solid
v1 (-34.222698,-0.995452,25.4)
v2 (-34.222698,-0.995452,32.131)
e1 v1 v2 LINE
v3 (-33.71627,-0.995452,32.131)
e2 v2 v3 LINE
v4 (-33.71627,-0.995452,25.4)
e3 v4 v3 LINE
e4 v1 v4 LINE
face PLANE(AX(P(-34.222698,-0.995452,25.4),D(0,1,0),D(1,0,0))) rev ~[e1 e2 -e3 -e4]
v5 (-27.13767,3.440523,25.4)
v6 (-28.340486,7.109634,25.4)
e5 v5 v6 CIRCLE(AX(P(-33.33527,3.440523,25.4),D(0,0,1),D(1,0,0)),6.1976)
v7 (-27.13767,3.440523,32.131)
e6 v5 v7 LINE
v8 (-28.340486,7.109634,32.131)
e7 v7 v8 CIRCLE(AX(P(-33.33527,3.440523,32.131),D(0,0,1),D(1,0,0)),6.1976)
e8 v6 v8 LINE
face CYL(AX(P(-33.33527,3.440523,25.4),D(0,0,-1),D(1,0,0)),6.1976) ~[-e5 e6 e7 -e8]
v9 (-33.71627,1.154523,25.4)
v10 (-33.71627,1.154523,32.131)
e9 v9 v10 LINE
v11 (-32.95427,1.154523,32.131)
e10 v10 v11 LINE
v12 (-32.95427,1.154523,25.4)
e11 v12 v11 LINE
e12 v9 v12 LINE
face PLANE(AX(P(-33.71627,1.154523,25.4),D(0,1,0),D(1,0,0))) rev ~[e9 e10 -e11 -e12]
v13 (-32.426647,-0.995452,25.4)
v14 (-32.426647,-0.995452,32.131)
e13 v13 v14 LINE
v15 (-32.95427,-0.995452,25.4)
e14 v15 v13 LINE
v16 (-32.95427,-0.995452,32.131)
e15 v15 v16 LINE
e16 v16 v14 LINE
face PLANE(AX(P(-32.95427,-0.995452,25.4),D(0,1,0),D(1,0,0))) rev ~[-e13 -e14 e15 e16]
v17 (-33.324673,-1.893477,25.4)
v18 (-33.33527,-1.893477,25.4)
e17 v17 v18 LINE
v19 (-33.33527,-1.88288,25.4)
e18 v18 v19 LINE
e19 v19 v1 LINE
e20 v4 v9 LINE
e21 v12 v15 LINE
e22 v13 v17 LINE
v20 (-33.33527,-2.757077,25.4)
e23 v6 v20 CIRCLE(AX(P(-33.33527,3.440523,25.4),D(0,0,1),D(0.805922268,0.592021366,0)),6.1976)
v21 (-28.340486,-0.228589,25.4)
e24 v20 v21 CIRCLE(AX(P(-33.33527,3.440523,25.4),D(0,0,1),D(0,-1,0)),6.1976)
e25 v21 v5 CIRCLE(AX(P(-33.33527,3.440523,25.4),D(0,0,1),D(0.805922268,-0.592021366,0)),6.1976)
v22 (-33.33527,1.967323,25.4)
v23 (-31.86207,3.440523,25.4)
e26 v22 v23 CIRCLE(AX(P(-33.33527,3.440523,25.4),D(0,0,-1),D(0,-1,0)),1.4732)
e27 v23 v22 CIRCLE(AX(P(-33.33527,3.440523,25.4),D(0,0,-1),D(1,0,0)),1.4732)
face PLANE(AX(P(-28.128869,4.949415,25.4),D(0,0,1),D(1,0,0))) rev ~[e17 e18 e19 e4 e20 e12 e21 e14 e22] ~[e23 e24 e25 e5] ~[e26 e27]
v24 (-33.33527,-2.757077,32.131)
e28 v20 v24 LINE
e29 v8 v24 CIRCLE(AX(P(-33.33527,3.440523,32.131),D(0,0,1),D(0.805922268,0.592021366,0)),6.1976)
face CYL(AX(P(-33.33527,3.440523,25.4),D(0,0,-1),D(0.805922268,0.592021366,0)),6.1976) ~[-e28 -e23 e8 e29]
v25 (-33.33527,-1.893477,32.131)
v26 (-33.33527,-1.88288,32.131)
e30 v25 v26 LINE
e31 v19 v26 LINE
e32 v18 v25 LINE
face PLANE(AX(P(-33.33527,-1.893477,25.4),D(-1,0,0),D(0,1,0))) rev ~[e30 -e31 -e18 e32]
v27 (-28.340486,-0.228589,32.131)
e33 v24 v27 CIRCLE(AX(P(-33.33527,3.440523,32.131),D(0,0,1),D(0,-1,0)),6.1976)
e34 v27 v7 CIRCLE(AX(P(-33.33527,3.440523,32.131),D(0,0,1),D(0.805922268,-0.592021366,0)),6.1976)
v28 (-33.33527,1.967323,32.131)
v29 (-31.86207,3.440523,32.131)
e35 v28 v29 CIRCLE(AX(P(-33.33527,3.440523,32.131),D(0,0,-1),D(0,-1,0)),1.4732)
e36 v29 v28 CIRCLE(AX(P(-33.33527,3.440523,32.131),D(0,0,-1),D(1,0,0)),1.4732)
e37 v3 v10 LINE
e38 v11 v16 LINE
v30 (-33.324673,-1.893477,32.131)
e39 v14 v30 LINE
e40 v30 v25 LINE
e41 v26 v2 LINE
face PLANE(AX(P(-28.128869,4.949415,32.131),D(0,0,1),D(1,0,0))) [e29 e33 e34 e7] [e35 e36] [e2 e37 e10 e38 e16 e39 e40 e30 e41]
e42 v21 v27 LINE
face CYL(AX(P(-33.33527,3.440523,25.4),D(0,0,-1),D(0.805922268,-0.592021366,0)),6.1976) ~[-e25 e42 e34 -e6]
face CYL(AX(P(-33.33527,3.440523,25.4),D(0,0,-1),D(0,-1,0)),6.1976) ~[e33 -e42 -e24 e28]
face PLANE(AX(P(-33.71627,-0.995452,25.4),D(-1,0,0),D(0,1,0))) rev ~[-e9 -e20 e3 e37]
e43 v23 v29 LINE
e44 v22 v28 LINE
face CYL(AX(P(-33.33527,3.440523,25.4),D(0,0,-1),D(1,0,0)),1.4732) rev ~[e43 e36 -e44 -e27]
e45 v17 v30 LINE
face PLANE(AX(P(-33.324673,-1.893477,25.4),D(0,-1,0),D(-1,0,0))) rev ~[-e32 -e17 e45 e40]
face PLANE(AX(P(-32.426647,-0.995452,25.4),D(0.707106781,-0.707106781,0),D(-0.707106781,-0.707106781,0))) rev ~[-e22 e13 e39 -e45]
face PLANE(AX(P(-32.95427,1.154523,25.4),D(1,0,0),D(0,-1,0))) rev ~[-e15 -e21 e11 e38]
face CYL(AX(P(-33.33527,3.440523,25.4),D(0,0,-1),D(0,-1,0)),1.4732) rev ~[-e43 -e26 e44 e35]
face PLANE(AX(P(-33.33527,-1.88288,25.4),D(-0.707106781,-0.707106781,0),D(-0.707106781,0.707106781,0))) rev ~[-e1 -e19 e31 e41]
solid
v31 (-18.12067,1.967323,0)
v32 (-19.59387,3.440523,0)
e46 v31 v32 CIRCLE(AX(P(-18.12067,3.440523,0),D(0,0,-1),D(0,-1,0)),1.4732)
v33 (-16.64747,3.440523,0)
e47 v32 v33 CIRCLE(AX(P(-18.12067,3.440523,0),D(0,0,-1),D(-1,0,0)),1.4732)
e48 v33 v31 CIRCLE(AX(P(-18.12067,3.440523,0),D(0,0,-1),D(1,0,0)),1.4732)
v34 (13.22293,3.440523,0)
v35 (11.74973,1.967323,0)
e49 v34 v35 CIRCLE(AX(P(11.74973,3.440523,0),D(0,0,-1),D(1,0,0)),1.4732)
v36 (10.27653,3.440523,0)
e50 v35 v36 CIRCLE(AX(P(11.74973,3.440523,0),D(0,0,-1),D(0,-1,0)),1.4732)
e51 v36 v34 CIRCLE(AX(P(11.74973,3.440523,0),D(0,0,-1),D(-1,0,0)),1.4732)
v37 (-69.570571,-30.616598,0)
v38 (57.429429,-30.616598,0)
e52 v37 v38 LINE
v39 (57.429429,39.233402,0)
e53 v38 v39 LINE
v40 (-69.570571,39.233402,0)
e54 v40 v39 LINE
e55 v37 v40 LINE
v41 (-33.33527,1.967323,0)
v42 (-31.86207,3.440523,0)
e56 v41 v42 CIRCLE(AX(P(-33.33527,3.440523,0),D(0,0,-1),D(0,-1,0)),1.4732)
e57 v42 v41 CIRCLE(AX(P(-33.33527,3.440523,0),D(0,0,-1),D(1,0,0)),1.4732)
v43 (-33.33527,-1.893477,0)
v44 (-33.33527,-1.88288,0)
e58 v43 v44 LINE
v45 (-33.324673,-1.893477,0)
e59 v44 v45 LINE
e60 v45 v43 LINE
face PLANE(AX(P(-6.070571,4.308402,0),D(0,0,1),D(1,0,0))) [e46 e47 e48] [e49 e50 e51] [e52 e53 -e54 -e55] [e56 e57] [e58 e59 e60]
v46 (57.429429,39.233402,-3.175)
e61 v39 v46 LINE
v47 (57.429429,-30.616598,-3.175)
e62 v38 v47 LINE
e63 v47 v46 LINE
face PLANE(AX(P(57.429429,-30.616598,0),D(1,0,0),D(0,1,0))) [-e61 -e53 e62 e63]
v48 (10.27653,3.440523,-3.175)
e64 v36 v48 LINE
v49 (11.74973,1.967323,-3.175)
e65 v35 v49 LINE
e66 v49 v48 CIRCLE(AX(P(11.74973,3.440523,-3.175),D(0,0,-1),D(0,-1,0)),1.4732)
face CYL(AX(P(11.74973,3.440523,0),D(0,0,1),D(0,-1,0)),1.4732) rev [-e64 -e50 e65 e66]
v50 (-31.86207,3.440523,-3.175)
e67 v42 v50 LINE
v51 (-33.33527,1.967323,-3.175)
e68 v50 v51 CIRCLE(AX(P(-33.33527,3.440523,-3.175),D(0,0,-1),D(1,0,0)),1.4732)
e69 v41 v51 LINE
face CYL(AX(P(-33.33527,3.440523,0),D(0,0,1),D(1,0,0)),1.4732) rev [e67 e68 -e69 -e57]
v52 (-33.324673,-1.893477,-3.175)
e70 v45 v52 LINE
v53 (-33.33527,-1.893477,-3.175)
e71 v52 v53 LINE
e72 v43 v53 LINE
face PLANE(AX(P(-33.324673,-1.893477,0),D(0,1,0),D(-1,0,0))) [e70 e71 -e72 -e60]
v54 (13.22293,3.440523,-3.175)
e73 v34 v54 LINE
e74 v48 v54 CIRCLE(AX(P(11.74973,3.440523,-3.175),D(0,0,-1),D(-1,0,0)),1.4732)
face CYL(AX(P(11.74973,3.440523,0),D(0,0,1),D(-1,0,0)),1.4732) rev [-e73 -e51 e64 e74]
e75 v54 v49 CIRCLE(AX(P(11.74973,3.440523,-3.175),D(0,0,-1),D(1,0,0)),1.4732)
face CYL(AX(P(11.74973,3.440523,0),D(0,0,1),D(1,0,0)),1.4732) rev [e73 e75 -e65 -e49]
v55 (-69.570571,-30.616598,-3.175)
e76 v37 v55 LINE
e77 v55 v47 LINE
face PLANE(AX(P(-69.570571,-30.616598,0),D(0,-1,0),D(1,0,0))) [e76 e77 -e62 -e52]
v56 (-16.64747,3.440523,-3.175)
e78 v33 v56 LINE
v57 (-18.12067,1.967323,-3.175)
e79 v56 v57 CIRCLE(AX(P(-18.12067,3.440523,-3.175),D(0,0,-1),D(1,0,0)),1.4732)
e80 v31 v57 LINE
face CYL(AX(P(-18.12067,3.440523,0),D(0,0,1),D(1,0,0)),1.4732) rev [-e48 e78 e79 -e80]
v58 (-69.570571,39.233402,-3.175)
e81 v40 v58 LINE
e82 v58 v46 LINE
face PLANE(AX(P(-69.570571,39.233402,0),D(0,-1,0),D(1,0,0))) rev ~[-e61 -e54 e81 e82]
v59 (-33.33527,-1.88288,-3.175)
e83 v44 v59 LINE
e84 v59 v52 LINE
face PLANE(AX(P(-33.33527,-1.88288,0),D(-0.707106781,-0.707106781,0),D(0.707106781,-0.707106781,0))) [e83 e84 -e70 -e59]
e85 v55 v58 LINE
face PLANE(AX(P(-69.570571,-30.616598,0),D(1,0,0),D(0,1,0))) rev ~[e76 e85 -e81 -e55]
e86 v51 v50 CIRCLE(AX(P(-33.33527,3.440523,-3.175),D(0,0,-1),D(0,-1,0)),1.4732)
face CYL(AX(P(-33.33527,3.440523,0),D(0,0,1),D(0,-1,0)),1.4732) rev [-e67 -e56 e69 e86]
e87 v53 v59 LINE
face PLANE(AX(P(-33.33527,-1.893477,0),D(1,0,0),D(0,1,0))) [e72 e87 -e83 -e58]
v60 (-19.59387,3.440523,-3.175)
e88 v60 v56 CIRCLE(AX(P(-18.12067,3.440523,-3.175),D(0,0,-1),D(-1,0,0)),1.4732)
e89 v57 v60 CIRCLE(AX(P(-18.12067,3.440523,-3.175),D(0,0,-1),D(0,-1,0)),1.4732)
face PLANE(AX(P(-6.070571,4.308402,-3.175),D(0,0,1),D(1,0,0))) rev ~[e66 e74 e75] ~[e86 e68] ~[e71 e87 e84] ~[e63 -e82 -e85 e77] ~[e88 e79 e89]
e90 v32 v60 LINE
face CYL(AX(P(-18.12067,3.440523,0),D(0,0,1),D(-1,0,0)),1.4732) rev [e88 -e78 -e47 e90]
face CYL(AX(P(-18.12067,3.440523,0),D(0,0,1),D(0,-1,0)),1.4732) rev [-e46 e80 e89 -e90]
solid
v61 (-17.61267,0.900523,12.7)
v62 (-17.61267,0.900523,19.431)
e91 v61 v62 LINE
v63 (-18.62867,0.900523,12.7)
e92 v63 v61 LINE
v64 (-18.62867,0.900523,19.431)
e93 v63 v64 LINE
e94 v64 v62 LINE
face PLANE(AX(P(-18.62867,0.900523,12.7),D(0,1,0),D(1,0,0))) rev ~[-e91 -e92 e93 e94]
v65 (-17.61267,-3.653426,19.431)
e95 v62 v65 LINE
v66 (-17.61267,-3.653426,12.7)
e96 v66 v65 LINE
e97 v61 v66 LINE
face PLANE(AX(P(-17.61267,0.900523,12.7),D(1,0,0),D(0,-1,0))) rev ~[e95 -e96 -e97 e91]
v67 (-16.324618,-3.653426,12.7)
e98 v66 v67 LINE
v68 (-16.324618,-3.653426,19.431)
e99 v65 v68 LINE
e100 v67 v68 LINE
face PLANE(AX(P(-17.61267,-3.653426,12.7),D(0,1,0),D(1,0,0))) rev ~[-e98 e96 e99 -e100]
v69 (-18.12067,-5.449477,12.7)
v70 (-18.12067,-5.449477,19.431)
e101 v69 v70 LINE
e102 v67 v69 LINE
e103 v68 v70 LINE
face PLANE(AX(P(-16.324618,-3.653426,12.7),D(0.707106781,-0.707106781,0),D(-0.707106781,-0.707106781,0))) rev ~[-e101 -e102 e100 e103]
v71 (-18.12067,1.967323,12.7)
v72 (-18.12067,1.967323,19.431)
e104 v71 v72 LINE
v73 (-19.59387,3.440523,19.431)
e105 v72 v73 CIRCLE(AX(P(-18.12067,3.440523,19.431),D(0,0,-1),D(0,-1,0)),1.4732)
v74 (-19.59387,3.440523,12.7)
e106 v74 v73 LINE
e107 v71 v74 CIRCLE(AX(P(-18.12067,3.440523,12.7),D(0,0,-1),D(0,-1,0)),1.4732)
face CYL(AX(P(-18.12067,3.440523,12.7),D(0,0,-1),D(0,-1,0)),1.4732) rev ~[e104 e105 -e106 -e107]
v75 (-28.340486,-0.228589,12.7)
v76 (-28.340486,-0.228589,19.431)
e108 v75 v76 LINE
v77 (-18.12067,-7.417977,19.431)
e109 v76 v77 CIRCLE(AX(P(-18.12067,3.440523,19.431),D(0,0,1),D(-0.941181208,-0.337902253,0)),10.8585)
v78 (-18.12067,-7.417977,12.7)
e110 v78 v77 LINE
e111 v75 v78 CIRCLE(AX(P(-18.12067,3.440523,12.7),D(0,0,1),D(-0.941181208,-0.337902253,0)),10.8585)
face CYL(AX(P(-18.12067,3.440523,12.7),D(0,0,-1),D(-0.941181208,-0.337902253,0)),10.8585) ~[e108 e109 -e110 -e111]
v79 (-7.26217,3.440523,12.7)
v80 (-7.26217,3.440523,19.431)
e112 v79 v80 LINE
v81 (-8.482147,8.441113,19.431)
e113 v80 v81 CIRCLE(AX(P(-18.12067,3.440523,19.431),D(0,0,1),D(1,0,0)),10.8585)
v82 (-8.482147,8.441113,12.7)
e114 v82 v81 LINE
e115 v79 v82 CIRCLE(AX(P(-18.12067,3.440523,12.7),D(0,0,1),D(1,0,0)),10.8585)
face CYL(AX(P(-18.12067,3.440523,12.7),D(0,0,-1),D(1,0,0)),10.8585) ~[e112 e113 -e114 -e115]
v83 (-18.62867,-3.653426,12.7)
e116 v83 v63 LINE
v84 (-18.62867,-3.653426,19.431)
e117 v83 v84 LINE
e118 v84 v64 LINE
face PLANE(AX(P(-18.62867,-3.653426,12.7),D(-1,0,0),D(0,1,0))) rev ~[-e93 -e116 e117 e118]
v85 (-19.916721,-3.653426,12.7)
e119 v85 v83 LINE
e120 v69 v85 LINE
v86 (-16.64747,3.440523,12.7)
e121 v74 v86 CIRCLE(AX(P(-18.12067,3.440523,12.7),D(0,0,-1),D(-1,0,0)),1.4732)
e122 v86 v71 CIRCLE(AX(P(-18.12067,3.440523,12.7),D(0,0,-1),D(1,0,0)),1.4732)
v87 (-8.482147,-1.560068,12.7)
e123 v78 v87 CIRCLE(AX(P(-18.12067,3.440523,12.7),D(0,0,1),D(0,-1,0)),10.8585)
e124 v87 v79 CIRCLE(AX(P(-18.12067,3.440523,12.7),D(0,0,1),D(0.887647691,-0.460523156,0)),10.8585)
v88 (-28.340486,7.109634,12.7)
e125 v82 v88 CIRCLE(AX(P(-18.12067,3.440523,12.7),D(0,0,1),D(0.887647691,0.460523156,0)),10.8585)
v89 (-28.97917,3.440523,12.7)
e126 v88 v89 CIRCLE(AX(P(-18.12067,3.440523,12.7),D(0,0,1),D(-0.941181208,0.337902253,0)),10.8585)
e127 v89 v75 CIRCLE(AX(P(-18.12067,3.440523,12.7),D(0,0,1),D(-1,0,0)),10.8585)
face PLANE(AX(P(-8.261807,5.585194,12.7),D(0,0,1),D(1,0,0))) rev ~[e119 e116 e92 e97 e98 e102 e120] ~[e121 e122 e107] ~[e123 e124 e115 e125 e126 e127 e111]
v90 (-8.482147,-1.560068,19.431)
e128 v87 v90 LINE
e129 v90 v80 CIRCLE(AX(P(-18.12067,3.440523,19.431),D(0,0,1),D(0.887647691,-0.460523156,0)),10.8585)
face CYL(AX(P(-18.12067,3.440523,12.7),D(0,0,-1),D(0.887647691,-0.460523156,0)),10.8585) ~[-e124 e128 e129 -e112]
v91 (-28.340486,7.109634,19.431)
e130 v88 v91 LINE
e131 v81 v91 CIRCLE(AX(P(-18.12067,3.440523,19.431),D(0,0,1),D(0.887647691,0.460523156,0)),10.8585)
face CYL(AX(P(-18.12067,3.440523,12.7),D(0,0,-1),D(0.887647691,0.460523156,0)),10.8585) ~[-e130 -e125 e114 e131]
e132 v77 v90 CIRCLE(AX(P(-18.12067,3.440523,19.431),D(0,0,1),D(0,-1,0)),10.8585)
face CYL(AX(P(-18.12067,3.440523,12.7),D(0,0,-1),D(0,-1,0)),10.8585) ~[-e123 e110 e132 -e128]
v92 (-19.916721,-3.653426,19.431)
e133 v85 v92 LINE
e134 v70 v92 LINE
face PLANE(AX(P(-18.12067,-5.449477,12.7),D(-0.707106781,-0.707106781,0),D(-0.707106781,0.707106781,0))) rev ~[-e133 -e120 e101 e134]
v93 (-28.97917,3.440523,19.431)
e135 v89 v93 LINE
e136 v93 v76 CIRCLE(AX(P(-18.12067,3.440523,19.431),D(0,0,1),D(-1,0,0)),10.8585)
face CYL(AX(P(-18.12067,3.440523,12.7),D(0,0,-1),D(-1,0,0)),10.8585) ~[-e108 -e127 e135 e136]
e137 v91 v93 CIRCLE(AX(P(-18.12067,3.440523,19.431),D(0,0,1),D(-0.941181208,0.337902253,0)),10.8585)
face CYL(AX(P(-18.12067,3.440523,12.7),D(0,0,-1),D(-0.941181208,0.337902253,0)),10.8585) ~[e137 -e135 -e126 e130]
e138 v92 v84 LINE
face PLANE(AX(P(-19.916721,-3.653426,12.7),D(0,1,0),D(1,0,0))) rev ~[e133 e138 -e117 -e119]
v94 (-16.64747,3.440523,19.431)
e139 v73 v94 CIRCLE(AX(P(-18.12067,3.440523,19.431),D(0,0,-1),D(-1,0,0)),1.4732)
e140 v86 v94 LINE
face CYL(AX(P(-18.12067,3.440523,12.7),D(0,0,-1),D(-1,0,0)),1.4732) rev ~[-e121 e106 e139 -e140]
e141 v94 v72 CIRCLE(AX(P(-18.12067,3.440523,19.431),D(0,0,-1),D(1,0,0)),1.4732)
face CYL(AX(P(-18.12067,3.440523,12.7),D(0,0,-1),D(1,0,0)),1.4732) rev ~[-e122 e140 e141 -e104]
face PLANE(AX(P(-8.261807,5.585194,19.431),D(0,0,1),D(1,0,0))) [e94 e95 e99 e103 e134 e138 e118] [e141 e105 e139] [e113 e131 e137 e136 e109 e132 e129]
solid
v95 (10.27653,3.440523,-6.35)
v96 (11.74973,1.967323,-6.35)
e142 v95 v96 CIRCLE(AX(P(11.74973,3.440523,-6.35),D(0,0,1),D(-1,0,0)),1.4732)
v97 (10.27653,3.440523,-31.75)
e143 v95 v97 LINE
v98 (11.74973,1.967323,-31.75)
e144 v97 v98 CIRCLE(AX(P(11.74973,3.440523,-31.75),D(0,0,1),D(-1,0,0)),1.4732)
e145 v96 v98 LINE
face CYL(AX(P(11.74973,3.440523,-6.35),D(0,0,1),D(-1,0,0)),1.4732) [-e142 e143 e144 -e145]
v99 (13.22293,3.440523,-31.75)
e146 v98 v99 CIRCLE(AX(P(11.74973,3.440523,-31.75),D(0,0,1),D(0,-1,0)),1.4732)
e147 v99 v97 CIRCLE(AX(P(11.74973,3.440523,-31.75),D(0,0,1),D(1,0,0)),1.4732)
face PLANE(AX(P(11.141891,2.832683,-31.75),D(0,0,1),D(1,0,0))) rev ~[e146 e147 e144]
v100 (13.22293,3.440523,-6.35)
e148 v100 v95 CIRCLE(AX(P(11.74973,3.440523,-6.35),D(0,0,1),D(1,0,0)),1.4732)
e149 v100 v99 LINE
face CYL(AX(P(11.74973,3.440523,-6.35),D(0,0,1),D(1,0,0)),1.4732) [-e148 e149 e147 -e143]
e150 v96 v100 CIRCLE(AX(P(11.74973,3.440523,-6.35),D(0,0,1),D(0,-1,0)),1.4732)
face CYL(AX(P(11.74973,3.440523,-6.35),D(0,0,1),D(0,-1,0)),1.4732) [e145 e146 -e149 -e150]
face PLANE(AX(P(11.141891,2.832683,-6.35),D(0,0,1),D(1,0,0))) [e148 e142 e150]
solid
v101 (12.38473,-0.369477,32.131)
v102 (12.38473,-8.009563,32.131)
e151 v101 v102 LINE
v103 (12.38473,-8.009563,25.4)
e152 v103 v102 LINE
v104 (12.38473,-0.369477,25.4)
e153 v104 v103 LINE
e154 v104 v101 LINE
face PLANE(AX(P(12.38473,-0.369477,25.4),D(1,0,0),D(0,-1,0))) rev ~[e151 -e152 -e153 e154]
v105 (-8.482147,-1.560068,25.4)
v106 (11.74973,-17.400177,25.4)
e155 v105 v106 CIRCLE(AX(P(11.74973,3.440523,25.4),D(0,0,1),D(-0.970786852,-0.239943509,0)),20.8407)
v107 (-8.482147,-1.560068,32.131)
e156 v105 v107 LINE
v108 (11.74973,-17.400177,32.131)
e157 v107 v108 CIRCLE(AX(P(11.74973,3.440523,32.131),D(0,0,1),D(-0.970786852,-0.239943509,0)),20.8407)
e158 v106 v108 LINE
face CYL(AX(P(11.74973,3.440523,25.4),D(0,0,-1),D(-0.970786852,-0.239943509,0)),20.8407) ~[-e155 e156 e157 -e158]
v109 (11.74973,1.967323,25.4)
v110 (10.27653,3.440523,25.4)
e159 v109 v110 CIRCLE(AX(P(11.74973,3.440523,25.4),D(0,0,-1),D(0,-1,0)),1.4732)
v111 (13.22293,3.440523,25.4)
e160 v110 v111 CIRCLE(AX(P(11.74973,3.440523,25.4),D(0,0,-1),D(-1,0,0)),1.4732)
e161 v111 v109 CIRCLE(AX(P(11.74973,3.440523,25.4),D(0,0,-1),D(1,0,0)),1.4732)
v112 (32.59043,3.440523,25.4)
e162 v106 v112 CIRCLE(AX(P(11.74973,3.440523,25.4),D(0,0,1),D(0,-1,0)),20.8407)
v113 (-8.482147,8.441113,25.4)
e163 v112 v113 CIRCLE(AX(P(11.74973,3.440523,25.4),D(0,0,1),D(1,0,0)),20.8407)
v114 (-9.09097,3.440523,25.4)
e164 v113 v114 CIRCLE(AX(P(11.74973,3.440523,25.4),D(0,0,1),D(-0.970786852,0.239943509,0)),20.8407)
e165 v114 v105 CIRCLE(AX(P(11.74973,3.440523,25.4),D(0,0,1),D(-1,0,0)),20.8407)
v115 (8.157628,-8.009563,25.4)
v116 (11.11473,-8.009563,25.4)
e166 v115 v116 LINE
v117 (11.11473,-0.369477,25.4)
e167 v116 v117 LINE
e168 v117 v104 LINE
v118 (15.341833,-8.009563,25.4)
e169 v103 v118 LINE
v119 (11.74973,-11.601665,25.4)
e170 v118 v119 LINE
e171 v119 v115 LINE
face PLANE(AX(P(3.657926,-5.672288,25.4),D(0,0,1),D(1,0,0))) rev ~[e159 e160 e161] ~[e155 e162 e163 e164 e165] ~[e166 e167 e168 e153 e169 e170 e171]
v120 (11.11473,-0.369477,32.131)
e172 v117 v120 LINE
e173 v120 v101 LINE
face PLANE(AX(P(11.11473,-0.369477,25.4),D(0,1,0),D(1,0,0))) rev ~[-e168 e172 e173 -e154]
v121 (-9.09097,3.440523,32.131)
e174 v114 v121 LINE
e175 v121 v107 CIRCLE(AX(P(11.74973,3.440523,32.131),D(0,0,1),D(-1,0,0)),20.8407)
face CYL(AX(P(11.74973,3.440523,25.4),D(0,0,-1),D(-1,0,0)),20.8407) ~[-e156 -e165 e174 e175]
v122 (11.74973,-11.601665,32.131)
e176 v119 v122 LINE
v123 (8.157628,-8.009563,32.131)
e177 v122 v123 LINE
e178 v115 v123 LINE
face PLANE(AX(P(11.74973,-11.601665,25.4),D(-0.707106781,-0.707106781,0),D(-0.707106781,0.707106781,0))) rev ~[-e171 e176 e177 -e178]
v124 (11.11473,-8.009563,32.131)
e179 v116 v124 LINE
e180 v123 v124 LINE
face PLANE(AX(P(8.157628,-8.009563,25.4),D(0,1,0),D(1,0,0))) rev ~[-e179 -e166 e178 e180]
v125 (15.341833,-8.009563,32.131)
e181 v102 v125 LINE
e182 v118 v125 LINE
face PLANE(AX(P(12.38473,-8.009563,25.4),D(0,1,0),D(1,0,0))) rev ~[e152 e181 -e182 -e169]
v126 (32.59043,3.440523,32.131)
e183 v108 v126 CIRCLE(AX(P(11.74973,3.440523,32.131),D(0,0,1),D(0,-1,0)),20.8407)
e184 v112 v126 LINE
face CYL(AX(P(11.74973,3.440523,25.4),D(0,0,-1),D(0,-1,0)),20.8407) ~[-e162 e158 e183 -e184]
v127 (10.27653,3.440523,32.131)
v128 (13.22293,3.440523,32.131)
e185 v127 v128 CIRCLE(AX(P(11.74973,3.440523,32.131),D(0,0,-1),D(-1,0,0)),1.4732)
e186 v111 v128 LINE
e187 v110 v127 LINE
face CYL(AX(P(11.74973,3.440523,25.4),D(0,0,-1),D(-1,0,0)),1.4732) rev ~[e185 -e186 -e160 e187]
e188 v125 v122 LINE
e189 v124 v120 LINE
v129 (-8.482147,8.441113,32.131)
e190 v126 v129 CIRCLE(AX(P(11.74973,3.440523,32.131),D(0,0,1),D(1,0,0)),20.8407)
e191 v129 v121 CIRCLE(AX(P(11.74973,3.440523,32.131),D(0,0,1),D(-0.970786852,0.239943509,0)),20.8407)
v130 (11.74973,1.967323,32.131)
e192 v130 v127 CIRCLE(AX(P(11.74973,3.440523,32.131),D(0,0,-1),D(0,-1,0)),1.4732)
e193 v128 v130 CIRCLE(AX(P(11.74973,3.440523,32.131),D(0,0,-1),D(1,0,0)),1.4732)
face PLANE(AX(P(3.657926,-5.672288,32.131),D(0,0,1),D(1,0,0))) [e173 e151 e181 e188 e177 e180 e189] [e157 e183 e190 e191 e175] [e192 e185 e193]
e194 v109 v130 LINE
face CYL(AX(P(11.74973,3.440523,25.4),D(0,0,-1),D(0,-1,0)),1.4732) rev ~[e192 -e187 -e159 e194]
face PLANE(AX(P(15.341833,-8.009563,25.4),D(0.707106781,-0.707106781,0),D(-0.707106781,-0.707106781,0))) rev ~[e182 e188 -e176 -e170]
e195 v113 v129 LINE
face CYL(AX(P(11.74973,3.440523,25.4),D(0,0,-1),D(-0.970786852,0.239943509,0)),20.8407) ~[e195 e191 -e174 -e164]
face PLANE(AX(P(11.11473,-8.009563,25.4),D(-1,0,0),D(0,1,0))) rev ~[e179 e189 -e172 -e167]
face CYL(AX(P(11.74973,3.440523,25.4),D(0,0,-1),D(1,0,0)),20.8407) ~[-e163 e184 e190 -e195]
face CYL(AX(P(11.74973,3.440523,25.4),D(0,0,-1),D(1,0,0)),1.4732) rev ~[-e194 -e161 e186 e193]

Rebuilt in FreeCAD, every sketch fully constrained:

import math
import FreeCAD as App
import Part
import Sketcher
Q = App.Units.Quantity


def add_polygon(sketch, points):
    """Adds a closed chain of lines whose ends are joined by coincident constraints."""
    first, n = sketch.GeometryCount, len(points)
    for a, b in zip(points, points[1:] + points[:1]):
        sketch.addGeometry(Part.LineSegment(App.Vector(*a, 0), App.Vector(*b, 0)), False)
    for i in range(n):
        sketch.addConstraint(Sketcher.Constraint("Coincident", first + i, 2, first + (i + 1) % n, 1))

doc = App.newDocument("Part")
body = doc.addObject("PartDesign::Body", "Body")

# Sketch on XY plane
sketch1 = body.newObject("Sketcher::SketchObject", "Sketch")
sketch1.AttachmentSupport = (doc.getObject("XY_Plane"), [""])
sketch1.MapMode = "FlatFace"
add_polygon(sketch1, [(-69.571, 39.233), (-69.571, -30.617), (57.429, -30.617), (57.429, 39.233)])  # lines 0-3
add_polygon(sketch1, [(-33.335, -1.893), (-33.335, -1.883), (-33.325, -1.893)])  # lines 4-6
sketch1.addGeometry(Part.ArcOfCircle(Part.Circle(App.Vector(-33.335, 3.441, 0), App.Vector(0, 0, 1), 1.473), math.radians(0), math.radians(270)), False)  # 7
sketch1.addGeometry(Part.ArcOfCircle(Part.Circle(App.Vector(-33.335, 3.441, 0), App.Vector(0, 0, 1), 1.473), math.radians(-90), math.radians(0)), False)  # 8
sketch1.addGeometry(Part.ArcOfCircle(Part.Circle(App.Vector(-18.121, 3.441, 0), App.Vector(0, 0, 1), 1.473), math.radians(0), math.radians(180)), False)  # 9
sketch1.addGeometry(Part.ArcOfCircle(Part.Circle(App.Vector(-18.121, 3.441, 0), App.Vector(0, 0, 1), 1.473), math.radians(-90), math.radians(0)), False)  # 10
sketch1.addGeometry(Part.ArcOfCircle(Part.Circle(App.Vector(-18.121, 3.441, 0), App.Vector(0, 0, 1), 1.473), math.radians(180), math.radians(270)), False)  # 11
sketch1.addGeometry(Part.ArcOfCircle(Part.Circle(App.Vector(11.75, 3.441, 0), App.Vector(0, 0, 1), 1.473), math.radians(180), math.radians(270)), False)  # 12
sketch1.addGeometry(Part.ArcOfCircle(Part.Circle(App.Vector(11.75, 3.441, 0), App.Vector(0, 0, 1), 1.473), math.radians(0), math.radians(180)), False)  # 13
sketch1.addGeometry(Part.ArcOfCircle(Part.Circle(App.Vector(11.75, 3.441, 0), App.Vector(0, 0, 1), 1.473), math.radians(-90), math.radians(0)), False)  # 14
sketch1.addConstraint([
    Sketcher.Constraint("Tangent", 7, 1, 8, 2),
    Sketcher.Constraint("Coincident", 8, 1, 7, 2),
    Sketcher.Constraint("Tangent", 9, 1, 10, 2),
    Sketcher.Constraint("Tangent", 10, 1, 11, 2),
    Sketcher.Constraint("Tangent", 11, 1, 9, 2),
    Sketcher.Constraint("Tangent", 12, 1, 13, 2),
    Sketcher.Constraint("Tangent", 13, 1, 14, 2),
    Sketcher.Constraint("Tangent", 14, 1, 12, 2),
    Sketcher.Constraint("Vertical", 0),
    Sketcher.Constraint("Horizontal", 1),
    Sketcher.Constraint("Vertical", 2),
    Sketcher.Constraint("Horizontal", 3),
    Sketcher.Constraint("Vertical", 4),
    Sketcher.Constraint("Horizontal", 6),
    Sketcher.Constraint("Equal", 8, 9),
    Sketcher.Constraint("Equal", 11, 12),
    Sketcher.Constraint("Horizontal", 8, 3, 9, 3),
    Sketcher.Constraint("Horizontal", 11, 3, 12, 3),
    Sketcher.Constraint("Horizontal", 14, 3, 7, 1),
    Sketcher.Constraint("Horizontal", 7, 1, 9, 1),
    Sketcher.Constraint("Horizontal", 9, 1, 11, 1),
    Sketcher.Constraint("Horizontal", 11, 1, 12, 1),
    Sketcher.Constraint("Horizontal", 12, 1, 13, 1),
    Sketcher.Constraint("Vertical", 8, 3, 4, 2),
    Sketcher.Constraint("Vertical", 6, 2, 8, 1),
    Sketcher.Constraint("Vertical", 11, 3, 10, 1),
    Sketcher.Constraint("Vertical", 13, 3, 14, 1),
    Sketcher.Constraint("Equal", 6, 4),
    Sketcher.Constraint("DistanceX", 1, 1, 1, 2, Q("5 in")),
    Sketcher.Constraint("Radius", 7, Q("0.058 in")),
    Sketcher.Constraint("DistanceY", 0, 2, 0, 1, Q("2.75 in")),
    Sketcher.Constraint("DistanceY", 5, 2, 7, 3, Q("0.21 in")),
    Sketcher.Constraint("DistanceX", 9, 1, 12, 1, Q("1.06 in")),
    Sketcher.Constraint("DistanceX", 7, 3, 9, 3, Q("0.599 in")),
    Sketcher.Constraint("DistanceX", 0, 2, 7, 3, 36.235302),
    Sketcher.Constraint("DistanceX", 6, 2, 6, 1, 0.010597),
    Sketcher.Constraint("DistanceX", 7, 3, -1, 1, 33.33527),
    Sketcher.Constraint("DistanceY", 4, 2, -1, 1, 1.88288),
    Sketcher.Constraint("DistanceY", 0, 2, 7, 3, 34.05712),
])
pad1 = body.newObject("PartDesign::Pad", "Pad")
pad1.Profile = sketch1
pad1.Length = Q("0.125 in")
pad1.Reversed = True
body2 = doc.addObject("PartDesign::Body", "Body001")

# Sketch on XY plane
sketch2 = body2.newObject("Sketcher::SketchObject", "Sketch001")
sketch2.AttachmentSupport = (doc.getObject("XY_Plane001"), [""])
sketch2.MapMode = "FlatFace"
sketch2.AttachmentOffset = App.Placement(App.Vector(0, 0, 1 * 25.4), App.Rotation())
sketch2.addGeometry(Part.ArcOfCircle(Part.Circle(App.Vector(11.7, 3.4, 0), App.Vector(0, 0, 1), 20.8), math.radians(166.12), math.radians(180)), False)  # 0
sketch2.addGeometry(Part.ArcOfCircle(Part.Circle(App.Vector(11.7, 3.4, 0), App.Vector(0, 0, 1), 20.8), math.radians(-180), math.radians(-166.12)), False)  # 1
sketch2.addGeometry(Part.ArcOfCircle(Part.Circle(App.Vector(11.7, 3.4, 0), App.Vector(0, 0, 1), 20.8), math.radians(-166), math.radians(-90)), False)  # 2
sketch2.addGeometry(Part.ArcOfCircle(Part.Circle(App.Vector(11.7, 3.4, 0), App.Vector(0, 0, 1), 20.8), math.radians(-90), math.radians(0)), False)  # 3
sketch2.addGeometry(Part.ArcOfCircle(Part.Circle(App.Vector(11.7, 3.4, 0), App.Vector(0, 0, 1), 20.8), math.radians(0), math.radians(166)), False)  # 4
add_polygon(sketch2, [(11.7, -11.6), (8.2, -8), (11.1, -8), (11.1, -0.4), (12.4, -0.4), (12.4, -8), (15.3, -8)])  # lines 5-11
sketch2.addGeometry(Part.ArcOfCircle(Part.Circle(App.Vector(11.7, 3.4, 0), App.Vector(0, 0, 1), 1.5), math.radians(180), math.radians(270)), False)  # 12
sketch2.addGeometry(Part.ArcOfCircle(Part.Circle(App.Vector(11.7, 3.4, 0), App.Vector(0, 0, 1), 1.5), math.radians(0), math.radians(180)), False)  # 13
sketch2.addGeometry(Part.ArcOfCircle(Part.Circle(App.Vector(11.7, 3.4, 0), App.Vector(0, 0, 1), 1.5), math.radians(-90), math.radians(0)), False)  # 14
sketch2.addConstraint([
    Sketcher.Constraint("Tangent", 0, 2, 1, 1),
    Sketcher.Constraint("Tangent", 1, 2, 2, 1),
    Sketcher.Constraint("Tangent", 2, 2, 3, 1),
    Sketcher.Constraint("Tangent", 3, 2, 4, 1),
    Sketcher.Constraint("Tangent", 4, 2, 0, 1),
    Sketcher.Constraint("Tangent", 12, 1, 13, 2),
    Sketcher.Constraint("Tangent", 13, 1, 14, 2),
    Sketcher.Constraint("Tangent", 14, 1, 12, 2),
    Sketcher.Constraint("Horizontal", 6),
    Sketcher.Constraint("Vertical", 7),
    Sketcher.Constraint("Horizontal", 8),
    Sketcher.Constraint("Vertical", 9),
    Sketcher.Constraint("Horizontal", 10),
    Sketcher.Constraint("Coincident", 2, 3, 0, 3),
    Sketcher.Constraint("Coincident", 12, 3, 0, 3),
    Sketcher.Constraint("Perpendicular", 5, 11),
    Sketcher.Constraint("Horizontal", 14, 3, 0, 2),
    Sketcher.Constraint("Horizontal", 0, 2, 3, 2),
    Sketcher.Constraint("Horizontal", 6, 2, 9, 2),
    Sketcher.Constraint("Horizontal", 3, 2, 12, 1),
    Sketcher.Constraint("Horizontal", 12, 1, 13, 1),
    Sketcher.Constraint("Vertical", 14, 3, 2, 2),
    Sketcher.Constraint("Vertical", 1, 2, 4, 2),
    Sketcher.Constraint("Vertical", 2, 2, 11, 2),
    Sketcher.Constraint("Vertical", 11, 2, 14, 1),
    Sketcher.Constraint("Equal", 6, 10),
    Sketcher.Constraint("Equal", 5, 11),
    Sketcher.Constraint("Radius", 12, Q("0.058 in")),
    Sketcher.Constraint("Distance", 5, Q("0.2 in")),
    Sketcher.Constraint("DistanceX", 8, 1, 8, 2, Q("0.05 in")),
    Sketcher.Constraint("Radius", 0, Q("0.8205 in")),
    Sketcher.Constraint("DistanceY", 7, 2, 2, 3, Q("0.15 in")),
    Sketcher.Constraint("DistanceY", 7, 1, 7, 2, 7.640085),
    Sketcher.Constraint("DistanceX", -1, 1, 0, 3, 11.74973),
    Sketcher.Constraint("DistanceY", 1, 2, -1, 1, 1.560068),
    Sketcher.Constraint("DistanceY", 1, 2, 0, 2, 5.000591),
])
pad2 = body2.newObject("PartDesign::Pad", "Pad001")
pad2.Profile = sketch2
pad2.Length = Q("0.265 in")
body3 = doc.addObject("PartDesign::Body", "Body002")

# Sketch on XY plane
sketch3 = body3.newObject("Sketcher::SketchObject", "Sketch002")
sketch3.AttachmentSupport = (doc.getObject("XY_Plane002"), [""])
sketch3.MapMode = "FlatFace"
sketch3.AttachmentOffset = App.Placement(App.Vector(0, 0, 1 * 25.4), App.Rotation())
sketch3.addGeometry(Part.ArcOfCircle(Part.Circle(App.Vector(-33.335, 3.441, 0), App.Vector(0, 0, 1), 6.198), math.radians(-36), math.radians(0)), False)  # 0
sketch3.addGeometry(Part.ArcOfCircle(Part.Circle(App.Vector(-33.335, 3.441, 0), App.Vector(0, 0, 1), 6.198), math.radians(0), math.radians(36)), False)  # 1
sketch3.addGeometry(Part.ArcOfCircle(Part.Circle(App.Vector(-33.335, 3.441, 0), App.Vector(0, 0, 1), 6.198), math.radians(36), math.radians(270)), False)  # 2
sketch3.addGeometry(Part.ArcOfCircle(Part.Circle(App.Vector(-33.335, 3.441, 0), App.Vector(0, 0, 1), 6.198), math.radians(-90), math.radians(-36)), False)  # 3
add_polygon(sketch3, [(-33.335, -1.893), (-33.335, -1.883), (-34.223, -0.995), (-33.716, -0.995), (-33.716, 1.155), (-32.954, 1.155), (-32.954, -0.995), (-32.427, -0.995), (-33.325, -1.893)])  # lines 4-12
sketch3.addGeometry(Part.ArcOfCircle(Part.Circle(App.Vector(-33.335, 3.441, 0), App.Vector(0, 0, 1), 1.473), math.radians(0), math.radians(270)), False)  # 13
sketch3.addGeometry(Part.ArcOfCircle(Part.Circle(App.Vector(-33.335, 3.441, 0), App.Vector(0, 0, 1), 1.473), math.radians(-90), math.radians(0)), False)  # 14
sketch3.addConstraint([
    Sketcher.Constraint("Tangent", 0, 2, 1, 1),
    Sketcher.Constraint("Tangent", 1, 2, 2, 1),
    Sketcher.Constraint("Tangent", 2, 2, 3, 1),
    Sketcher.Constraint("Tangent", 3, 2, 0, 1),
    Sketcher.Constraint("Tangent", 13, 1, 14, 2),
    Sketcher.Constraint("Coincident", 14, 1, 13, 2),
    Sketcher.Constraint("Vertical", 4),
    Sketcher.Constraint("Horizontal", 6),
    Sketcher.Constraint("Vertical", 7),
    Sketcher.Constraint("Horizontal", 8),
    Sketcher.Constraint("Vertical", 9),
    Sketcher.Constraint("Horizontal", 10),
    Sketcher.Constraint("Horizontal", 12),
    Sketcher.Constraint("Coincident", 13, 3, 0, 3),
    Sketcher.Constraint("Equal", 0, 1),
    Sketcher.Constraint("Perpendicular", 5, 11),
    Sketcher.Constraint("Horizontal", 14, 3, 0, 2),
    Sketcher.Constraint("Horizontal", 6, 2, 9, 2),
    Sketcher.Constraint("Horizontal", 0, 2, 13, 1),
    Sketcher.Constraint("Vertical", 14, 3, 2, 2),
    Sketcher.Constraint("Vertical", 1, 2, 3, 2),
    Sketcher.Constraint("Vertical", 2, 2, 4, 2),
    Sketcher.Constraint("Vertical", 12, 2, 14, 1),
    Sketcher.Constraint("Equal", 12, 4),
    Sketcher.Constraint("Angle", 5, Q("135 deg")),
    Sketcher.Constraint("Radius", 0, Q("0.244 in")),
    Sketcher.Constraint("Radius", 13, Q("0.058 in")),
    Sketcher.Constraint("DistanceX", 8, 1, 8, 2, Q("0.03 in")),
    Sketcher.Constraint("Distance", 11, Q("0.05 in")),
    Sketcher.Constraint("DistanceY", 7, 2, 2, 3, Q("0.09 in")),
    Sketcher.Constraint("DistanceX", 6, 2, 4, 2, Q("0.015 in")),
    Sketcher.Constraint("DistanceY", 2, 2, 11, 2, Q("0.034 in")),
    Sketcher.Constraint("DistanceX", 6, 1, 6, 2, 0.506429),
    Sketcher.Constraint("DistanceX", 5, 2, -1, 1, 34.222698),
    Sketcher.Constraint("DistanceY", 3, 2, -1, 1, 0.228589),
    Sketcher.Constraint("DistanceY", 4, 2, -1, 1, 1.88288),
])
pad3 = body3.newObject("PartDesign::Pad", "Pad002")
pad3.Profile = sketch3
pad3.Length = Q("0.265 in")
body4 = doc.addObject("PartDesign::Body", "Body003")

# Sketch on XY plane
sketch4 = body4.newObject("Sketcher::SketchObject", "Sketch003")
sketch4.AttachmentSupport = (doc.getObject("XY_Plane003"), [""])
sketch4.MapMode = "FlatFace"
sketch4.AttachmentOffset = App.Placement(App.Vector(0, 0, 0.5 * 25.4), App.Rotation())
sketch4.addGeometry(Part.ArcOfCircle(Part.Circle(App.Vector(-18.1, 3.4, 0), App.Vector(0, 0, 1), 10.9), math.radians(0), math.radians(27)), False)  # 0
sketch4.addGeometry(Part.ArcOfCircle(Part.Circle(App.Vector(-18.1, 3.4, 0), App.Vector(0, 0, 1), 10.9), math.radians(27), math.radians(160)), False)  # 1
sketch4.addGeometry(Part.ArcOfCircle(Part.Circle(App.Vector(-18.1, 3.4, 0), App.Vector(0, 0, 1), 10.9), math.radians(160.25), math.radians(180)), False)  # 2
sketch4.addGeometry(Part.ArcOfCircle(Part.Circle(App.Vector(-18.1, 3.4, 0), App.Vector(0, 0, 1), 10.9), math.radians(180), math.radians(199.75)), False)  # 3
sketch4.addGeometry(Part.ArcOfCircle(Part.Circle(App.Vector(-18.1, 3.4, 0), App.Vector(0, 0, 1), 10.9), math.radians(-160), math.radians(-90)), False)  # 4
sketch4.addGeometry(Part.ArcOfCircle(Part.Circle(App.Vector(-18.1, 3.4, 0), App.Vector(0, 0, 1), 10.9), math.radians(-90), math.radians(-27)), False)  # 5
sketch4.addGeometry(Part.ArcOfCircle(Part.Circle(App.Vector(-18.1, 3.4, 0), App.Vector(0, 0, 1), 10.9), math.radians(-27), math.radians(0)), False)  # 6
add_polygon(sketch4, [(-19.9, -3.7), (-18.6, -3.7), (-18.6, 0.9), (-17.6, 0.9), (-17.6, -3.7), (-16.3, -3.7), (-18.1, -5.4)])  # lines 7-13
sketch4.addGeometry(Part.ArcOfCircle(Part.Circle(App.Vector(-18.1, 3.4, 0), App.Vector(0, 0, 1), 1.5), math.radians(180), math.radians(270)), False)  # 14
sketch4.addGeometry(Part.ArcOfCircle(Part.Circle(App.Vector(-18.1, 3.4, 0), App.Vector(0, 0, 1), 1.5), math.radians(0), math.radians(180)), False)  # 15
sketch4.addGeometry(Part.ArcOfCircle(Part.Circle(App.Vector(-18.1, 3.4, 0), App.Vector(0, 0, 1), 1.5), math.radians(-90), math.radians(0)), False)  # 16
sketch4.addConstraint([
    Sketcher.Constraint("Tangent", 0, 2, 1, 1),
    Sketcher.Constraint("Tangent", 1, 2, 2, 1),
    Sketcher.Constraint("Tangent", 2, 2, 3, 1),
    Sketcher.Constraint("Tangent", 3, 2, 4, 1),
    Sketcher.Constraint("Tangent", 4, 2, 5, 1),
    Sketcher.Constraint("Tangent", 5, 2, 6, 1),
    Sketcher.Constraint("Tangent", 6, 2, 0, 1),
    Sketcher.Constraint("Tangent", 14, 1, 15, 2),
    Sketcher.Constraint("Tangent", 15, 1, 16, 2),
    Sketcher.Constraint("Tangent", 16, 1, 14, 2),
    Sketcher.Constraint("Horizontal", 7),
    Sketcher.Constraint("Vertical", 8),
    Sketcher.Constraint("Horizontal", 9),
    Sketcher.Constraint("Vertical", 10),
    Sketcher.Constraint("Horizontal", 11),
    Sketcher.Constraint("Coincident", 2, 3, 0, 3),
    Sketcher.Constraint("Coincident", 4, 3, 0, 3),
    Sketcher.Constraint("Coincident", 14, 3, 0, 3),
    Sketcher.Constraint("Perpendicular", 12, 13),
    Sketcher.Constraint("Horizontal", 16, 3, 2, 2),
    Sketcher.Constraint("Horizontal", 2, 2, 6, 2),
    Sketcher.Constraint("Horizontal", 7, 2, 10, 2),
    Sketcher.Constraint("Horizontal", 6, 2, 14, 1),
    Sketcher.Constraint("Horizontal", 14, 1, 15, 1),
    Sketcher.Constraint("Vertical", 1, 2, 3, 2),
    Sketcher.Constraint("Vertical", 16, 3, 4, 2),
    Sketcher.Constraint("Vertical", 0, 2, 5, 2),
    Sketcher.Constraint("Vertical", 4, 2, 12, 2),
    Sketcher.Constraint("Vertical", 12, 2, 16, 1),
    Sketcher.Constraint("Equal", 7, 11),
    Sketcher.Constraint("Equal", 12, 13),
    Sketcher.Constraint("Radius", 14, Q("0.058 in")),
    Sketcher.Constraint("Distance", 12, Q("0.1 in")),
    Sketcher.Constraint("DistanceX", 9, 1, 9, 2, Q("0.04 in")),
    Sketcher.Constraint("Radius", 0, Q("0.4275 in")),
    Sketcher.Constraint("DistanceY", 8, 2, 1, 3, Q("0.1 in")),
    Sketcher.Constraint("DistanceY", 12, 2, 8, 2, Q("0.25 in")),
    Sketcher.Constraint("DistanceX", 0, 3, -1, 1, 18.12067),
    Sketcher.Constraint("DistanceY", 3, 2, -1, 1, 0.228589),
    Sketcher.Constraint("DistanceY", 5, 2, -1, 1, 1.560068),
    Sketcher.Constraint("DistanceY", 0, 3, 0, 2, 5.000591),
])
pad4 = body4.newObject("PartDesign::Pad", "Pad003")
pad4.Profile = sketch4
pad4.Length = Q("0.265 in")
body5 = doc.addObject("PartDesign::Body", "Body004")

# Sketch on XY plane
sketch5 = body5.newObject("Sketcher::SketchObject", "Sketch004")
sketch5.AttachmentSupport = (doc.getObject("XY_Plane004"), [""])
sketch5.MapMode = "FlatFace"
sketch5.AttachmentOffset = App.Placement(App.Vector(0, 0, -0.25 * 25.4), App.Rotation())
sketch5.addGeometry([
    Part.ArcOfCircle(Part.Circle(App.Vector(11.7, 3.4, 0), App.Vector(0, 0, 1), 1.5), math.radians(180), math.radians(270)),
    Part.ArcOfCircle(Part.Circle(App.Vector(11.7, 3.4, 0), App.Vector(0, 0, 1), 1.5), math.radians(-90), math.radians(0)),
    Part.ArcOfCircle(Part.Circle(App.Vector(11.7, 3.4, 0), App.Vector(0, 0, 1), 1.5), math.radians(0), math.radians(180)),
], False)
sketch5.addConstraint([
    Sketcher.Constraint("Tangent", 0, 2, 1, 1),
    Sketcher.Constraint("Tangent", 1, 2, 2, 1),
    Sketcher.Constraint("Tangent", 2, 2, 0, 1),
    Sketcher.Constraint("Horizontal", 2, 3, 1, 2),
    Sketcher.Constraint("Horizontal", 1, 2, 2, 2),
    Sketcher.Constraint("Vertical", 2, 3, 0, 2),
    Sketcher.Constraint("Radius", 0, Q("0.058 in")),
    Sketcher.Constraint("DistanceX", -1, 1, 0, 3, 11.74973),
    Sketcher.Constraint("DistanceY", -1, 1, 0, 3, 3.440523),
])
pad5 = body5.newObject("PartDesign::Pad", "Pad004")
pad5.Profile = sketch5
pad5.Length = Q("1 in")
pad5.Reversed = True

doc.recompute()
